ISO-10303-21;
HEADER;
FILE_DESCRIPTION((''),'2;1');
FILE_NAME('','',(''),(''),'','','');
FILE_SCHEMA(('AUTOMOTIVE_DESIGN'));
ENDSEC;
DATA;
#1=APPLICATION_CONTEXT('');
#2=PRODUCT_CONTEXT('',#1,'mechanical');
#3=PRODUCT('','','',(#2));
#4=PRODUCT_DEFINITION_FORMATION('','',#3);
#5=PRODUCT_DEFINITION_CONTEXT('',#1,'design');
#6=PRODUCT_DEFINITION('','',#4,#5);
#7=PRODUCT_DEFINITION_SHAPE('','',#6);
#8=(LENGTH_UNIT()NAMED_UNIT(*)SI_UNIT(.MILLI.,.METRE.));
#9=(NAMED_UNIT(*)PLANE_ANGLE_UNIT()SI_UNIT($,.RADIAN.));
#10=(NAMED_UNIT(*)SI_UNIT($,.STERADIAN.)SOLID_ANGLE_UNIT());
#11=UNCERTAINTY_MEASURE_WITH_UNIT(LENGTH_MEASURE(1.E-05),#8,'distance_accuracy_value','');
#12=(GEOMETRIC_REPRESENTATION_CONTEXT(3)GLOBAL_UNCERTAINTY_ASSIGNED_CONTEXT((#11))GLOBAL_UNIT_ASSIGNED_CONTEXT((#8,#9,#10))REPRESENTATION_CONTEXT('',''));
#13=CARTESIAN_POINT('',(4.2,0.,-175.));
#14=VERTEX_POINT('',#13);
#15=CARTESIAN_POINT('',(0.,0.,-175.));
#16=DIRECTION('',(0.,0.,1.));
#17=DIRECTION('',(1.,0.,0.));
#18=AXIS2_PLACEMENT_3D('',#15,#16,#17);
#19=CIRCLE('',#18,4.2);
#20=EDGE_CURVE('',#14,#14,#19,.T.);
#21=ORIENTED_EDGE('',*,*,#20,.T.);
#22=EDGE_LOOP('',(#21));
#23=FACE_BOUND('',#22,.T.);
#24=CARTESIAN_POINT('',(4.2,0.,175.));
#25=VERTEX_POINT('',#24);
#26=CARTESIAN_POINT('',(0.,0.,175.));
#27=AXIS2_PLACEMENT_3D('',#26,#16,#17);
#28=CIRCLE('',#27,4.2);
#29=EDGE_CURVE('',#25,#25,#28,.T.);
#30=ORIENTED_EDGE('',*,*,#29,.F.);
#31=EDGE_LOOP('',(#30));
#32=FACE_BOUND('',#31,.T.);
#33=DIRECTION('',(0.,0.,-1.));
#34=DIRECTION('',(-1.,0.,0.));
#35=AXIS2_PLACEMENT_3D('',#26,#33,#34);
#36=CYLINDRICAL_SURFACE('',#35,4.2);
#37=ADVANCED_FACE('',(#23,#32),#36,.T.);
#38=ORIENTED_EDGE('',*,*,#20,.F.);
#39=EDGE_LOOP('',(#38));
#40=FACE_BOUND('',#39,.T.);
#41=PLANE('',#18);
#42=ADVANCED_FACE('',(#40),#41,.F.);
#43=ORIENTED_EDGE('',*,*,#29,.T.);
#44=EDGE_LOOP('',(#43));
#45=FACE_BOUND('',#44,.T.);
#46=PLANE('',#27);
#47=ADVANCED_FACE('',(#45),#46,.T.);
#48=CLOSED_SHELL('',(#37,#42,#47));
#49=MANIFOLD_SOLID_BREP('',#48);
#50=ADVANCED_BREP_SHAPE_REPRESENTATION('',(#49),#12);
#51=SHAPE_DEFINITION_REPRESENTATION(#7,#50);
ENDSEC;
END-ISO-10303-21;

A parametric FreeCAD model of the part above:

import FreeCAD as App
import Part
import Sketcher

doc = App.newDocument("Part")
params = doc.addObject("Spreadsheet::Sheet", "Params")
for row, (alias, value) in enumerate([
    ("sketch1_diameter", "8.4 mm"),
    ("pad1_length", "350 mm"),
], start=1):
    params.set(f"A{row}", alias)
    params.set(f"B{row}", "=" + value)
    params.setAlias(f"B{row}", alias)

body = doc.addObject("PartDesign::Body", "Body")

# Sketch on XY plane
sketch1 = doc.addObject("Sketcher::SketchObject", "Sketch")
body.addObject(sketch1)
sketch1.AttachmentSupport = (doc.XY_Plane, [""])
sketch1.MapMode = "FlatFace"
sketch1.addGeometry(Part.Circle(App.Vector(0, 0, 0), App.Vector(0, 0, 1), 4.2), False)
sketch1.addConstraint([
    Sketcher.Constraint("Coincident", 0, 3, -1, 1),
    Sketcher.Constraint("Diameter", 0, 8.4),
])
sketch1.setExpression("Constraints[1]", "Params.sketch1_diameter")
pad1 = doc.addObject("PartDesign::Pad", "Pad")
body.addObject(pad1)
pad1.Profile = sketch1
pad1.setExpression("Length", "Params.pad1_length")
pad1.Midplane = True

doc.recompute()
